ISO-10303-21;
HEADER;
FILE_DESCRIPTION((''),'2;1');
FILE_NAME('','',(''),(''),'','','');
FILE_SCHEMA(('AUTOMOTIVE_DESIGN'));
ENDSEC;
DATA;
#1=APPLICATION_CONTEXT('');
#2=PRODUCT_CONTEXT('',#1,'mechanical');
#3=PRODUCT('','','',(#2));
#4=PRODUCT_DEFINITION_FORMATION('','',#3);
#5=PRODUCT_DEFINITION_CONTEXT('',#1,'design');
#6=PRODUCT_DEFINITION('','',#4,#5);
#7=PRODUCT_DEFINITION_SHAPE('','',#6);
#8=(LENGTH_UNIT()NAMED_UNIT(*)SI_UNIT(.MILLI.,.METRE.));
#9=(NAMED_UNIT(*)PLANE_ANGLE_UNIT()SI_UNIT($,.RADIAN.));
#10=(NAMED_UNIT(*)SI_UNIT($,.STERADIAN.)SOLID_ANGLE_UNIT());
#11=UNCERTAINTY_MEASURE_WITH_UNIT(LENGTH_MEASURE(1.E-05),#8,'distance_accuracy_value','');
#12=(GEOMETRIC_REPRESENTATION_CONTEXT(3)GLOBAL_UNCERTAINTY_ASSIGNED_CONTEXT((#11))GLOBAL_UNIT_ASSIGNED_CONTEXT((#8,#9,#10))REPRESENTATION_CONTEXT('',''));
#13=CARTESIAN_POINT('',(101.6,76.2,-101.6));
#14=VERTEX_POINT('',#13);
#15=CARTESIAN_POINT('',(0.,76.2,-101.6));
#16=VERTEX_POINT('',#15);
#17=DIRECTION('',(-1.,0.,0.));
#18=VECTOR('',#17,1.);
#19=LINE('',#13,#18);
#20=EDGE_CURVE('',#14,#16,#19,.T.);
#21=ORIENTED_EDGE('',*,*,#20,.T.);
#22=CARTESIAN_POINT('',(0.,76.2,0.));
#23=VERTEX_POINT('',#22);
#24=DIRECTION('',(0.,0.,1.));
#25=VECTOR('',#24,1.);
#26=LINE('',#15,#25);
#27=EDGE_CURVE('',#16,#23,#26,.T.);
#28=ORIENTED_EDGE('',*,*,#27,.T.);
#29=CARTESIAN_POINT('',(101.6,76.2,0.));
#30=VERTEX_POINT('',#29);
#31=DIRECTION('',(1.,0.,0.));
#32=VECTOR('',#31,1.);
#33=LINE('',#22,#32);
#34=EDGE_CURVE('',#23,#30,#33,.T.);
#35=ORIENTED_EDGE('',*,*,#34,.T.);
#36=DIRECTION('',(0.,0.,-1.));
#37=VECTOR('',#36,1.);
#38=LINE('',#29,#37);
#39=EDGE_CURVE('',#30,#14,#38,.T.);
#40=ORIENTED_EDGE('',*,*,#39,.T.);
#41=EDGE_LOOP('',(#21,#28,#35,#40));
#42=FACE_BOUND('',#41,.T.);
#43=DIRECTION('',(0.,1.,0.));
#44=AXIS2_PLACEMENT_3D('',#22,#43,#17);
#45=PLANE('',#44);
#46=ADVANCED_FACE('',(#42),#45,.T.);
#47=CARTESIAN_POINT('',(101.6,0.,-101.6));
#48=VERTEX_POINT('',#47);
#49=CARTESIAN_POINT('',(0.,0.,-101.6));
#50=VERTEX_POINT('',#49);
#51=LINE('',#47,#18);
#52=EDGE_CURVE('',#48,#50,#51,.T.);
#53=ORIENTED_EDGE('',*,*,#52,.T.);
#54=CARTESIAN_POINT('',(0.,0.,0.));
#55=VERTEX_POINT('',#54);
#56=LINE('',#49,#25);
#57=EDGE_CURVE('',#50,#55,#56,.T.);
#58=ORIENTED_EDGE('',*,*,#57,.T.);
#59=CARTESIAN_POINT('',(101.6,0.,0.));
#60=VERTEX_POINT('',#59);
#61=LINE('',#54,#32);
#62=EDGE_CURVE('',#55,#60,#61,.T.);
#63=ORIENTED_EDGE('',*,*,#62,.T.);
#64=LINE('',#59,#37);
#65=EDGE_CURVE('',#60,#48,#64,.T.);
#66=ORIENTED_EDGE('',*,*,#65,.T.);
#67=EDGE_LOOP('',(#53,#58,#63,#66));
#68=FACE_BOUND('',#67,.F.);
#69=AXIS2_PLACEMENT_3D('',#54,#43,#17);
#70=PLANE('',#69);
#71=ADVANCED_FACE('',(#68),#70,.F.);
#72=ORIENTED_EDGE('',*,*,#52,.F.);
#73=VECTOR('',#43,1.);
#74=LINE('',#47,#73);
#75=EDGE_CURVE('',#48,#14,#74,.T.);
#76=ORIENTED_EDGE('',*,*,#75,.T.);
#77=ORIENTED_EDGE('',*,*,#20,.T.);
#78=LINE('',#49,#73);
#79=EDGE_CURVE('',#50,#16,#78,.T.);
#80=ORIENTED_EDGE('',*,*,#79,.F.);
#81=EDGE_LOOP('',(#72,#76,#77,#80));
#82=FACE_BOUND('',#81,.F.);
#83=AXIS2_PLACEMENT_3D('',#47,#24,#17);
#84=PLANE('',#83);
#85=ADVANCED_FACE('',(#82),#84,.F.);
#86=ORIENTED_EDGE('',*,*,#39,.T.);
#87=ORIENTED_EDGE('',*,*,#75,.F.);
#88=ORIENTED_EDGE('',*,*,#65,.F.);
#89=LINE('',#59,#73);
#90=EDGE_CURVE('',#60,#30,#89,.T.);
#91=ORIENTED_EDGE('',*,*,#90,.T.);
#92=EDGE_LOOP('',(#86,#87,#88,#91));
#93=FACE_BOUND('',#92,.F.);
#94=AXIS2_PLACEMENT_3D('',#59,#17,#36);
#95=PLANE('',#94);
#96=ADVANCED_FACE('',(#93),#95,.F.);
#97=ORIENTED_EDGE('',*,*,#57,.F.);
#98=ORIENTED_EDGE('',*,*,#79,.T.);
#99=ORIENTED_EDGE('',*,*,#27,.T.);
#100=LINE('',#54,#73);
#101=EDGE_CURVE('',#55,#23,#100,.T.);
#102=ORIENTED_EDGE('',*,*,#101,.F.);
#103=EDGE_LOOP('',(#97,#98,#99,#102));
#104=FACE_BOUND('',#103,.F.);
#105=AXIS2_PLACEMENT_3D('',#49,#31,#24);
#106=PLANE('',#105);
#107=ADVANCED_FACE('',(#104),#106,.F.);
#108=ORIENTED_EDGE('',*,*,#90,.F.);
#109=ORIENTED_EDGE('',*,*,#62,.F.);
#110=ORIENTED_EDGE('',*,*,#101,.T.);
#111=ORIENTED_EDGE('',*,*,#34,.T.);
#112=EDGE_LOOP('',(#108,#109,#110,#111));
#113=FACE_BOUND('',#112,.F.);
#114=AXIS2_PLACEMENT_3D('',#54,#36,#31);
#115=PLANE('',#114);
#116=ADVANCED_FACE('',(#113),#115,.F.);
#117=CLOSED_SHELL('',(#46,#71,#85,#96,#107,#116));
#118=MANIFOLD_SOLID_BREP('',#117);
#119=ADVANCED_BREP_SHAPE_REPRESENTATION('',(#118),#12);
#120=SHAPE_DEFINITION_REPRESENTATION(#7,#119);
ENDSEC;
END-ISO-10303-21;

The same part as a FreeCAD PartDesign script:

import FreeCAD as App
import Part
import Sketcher
from FreeCAD import Vector
Q = App.Units.Quantity

doc = App.newDocument("Part")
body = doc.addObject("PartDesign::Body", "Body")

sketch1 = body.newObject("Sketcher::SketchObject", "Sketch")
sketch1.AttachmentSupport = (doc.getObject("XZ_Plane"), [""])
sketch1.MapMode = "FlatFace"
sketch1.addGeometry([
    Part.LineSegment(Vector(0, -102, 0), Vector(0, 0, 0)),
    Part.LineSegment(Vector(0, 0, 0), Vector(102, 0, 0)),
    Part.LineSegment(Vector(102, 0, 0), Vector(102, -102, 0)),
    Part.LineSegment(Vector(102, -102, 0), Vector(0, -102, 0)),
], False)
sketch1.addConstraint([
    Sketcher.Constraint("Coincident", 0, 2, 1, 1),
    Sketcher.Constraint("Coincident", 1, 2, 2, 1),
    Sketcher.Constraint("Coincident", 2, 2, 3, 1),
    Sketcher.Constraint("Coincident", 3, 2, 0, 1),
    Sketcher.Constraint("Vertical", 0),
    Sketcher.Constraint("Horizontal", 1),
    Sketcher.Constraint("Vertical", 2),
    Sketcher.Constraint("Horizontal", 3),
    Sketcher.Constraint("Coincident", 0, 2, -1, 1),
    Sketcher.Constraint("Equal", 3, 0),
    Sketcher.Constraint("DistanceX", 1, 1, 1, 2, Q("4 in")),
])
pad1 = body.newObject("PartDesign::Pad", "Pad")
pad1.Profile = sketch1
pad1.Length = Q("3 in")
pad1.Reversed = True

doc.recompute()
